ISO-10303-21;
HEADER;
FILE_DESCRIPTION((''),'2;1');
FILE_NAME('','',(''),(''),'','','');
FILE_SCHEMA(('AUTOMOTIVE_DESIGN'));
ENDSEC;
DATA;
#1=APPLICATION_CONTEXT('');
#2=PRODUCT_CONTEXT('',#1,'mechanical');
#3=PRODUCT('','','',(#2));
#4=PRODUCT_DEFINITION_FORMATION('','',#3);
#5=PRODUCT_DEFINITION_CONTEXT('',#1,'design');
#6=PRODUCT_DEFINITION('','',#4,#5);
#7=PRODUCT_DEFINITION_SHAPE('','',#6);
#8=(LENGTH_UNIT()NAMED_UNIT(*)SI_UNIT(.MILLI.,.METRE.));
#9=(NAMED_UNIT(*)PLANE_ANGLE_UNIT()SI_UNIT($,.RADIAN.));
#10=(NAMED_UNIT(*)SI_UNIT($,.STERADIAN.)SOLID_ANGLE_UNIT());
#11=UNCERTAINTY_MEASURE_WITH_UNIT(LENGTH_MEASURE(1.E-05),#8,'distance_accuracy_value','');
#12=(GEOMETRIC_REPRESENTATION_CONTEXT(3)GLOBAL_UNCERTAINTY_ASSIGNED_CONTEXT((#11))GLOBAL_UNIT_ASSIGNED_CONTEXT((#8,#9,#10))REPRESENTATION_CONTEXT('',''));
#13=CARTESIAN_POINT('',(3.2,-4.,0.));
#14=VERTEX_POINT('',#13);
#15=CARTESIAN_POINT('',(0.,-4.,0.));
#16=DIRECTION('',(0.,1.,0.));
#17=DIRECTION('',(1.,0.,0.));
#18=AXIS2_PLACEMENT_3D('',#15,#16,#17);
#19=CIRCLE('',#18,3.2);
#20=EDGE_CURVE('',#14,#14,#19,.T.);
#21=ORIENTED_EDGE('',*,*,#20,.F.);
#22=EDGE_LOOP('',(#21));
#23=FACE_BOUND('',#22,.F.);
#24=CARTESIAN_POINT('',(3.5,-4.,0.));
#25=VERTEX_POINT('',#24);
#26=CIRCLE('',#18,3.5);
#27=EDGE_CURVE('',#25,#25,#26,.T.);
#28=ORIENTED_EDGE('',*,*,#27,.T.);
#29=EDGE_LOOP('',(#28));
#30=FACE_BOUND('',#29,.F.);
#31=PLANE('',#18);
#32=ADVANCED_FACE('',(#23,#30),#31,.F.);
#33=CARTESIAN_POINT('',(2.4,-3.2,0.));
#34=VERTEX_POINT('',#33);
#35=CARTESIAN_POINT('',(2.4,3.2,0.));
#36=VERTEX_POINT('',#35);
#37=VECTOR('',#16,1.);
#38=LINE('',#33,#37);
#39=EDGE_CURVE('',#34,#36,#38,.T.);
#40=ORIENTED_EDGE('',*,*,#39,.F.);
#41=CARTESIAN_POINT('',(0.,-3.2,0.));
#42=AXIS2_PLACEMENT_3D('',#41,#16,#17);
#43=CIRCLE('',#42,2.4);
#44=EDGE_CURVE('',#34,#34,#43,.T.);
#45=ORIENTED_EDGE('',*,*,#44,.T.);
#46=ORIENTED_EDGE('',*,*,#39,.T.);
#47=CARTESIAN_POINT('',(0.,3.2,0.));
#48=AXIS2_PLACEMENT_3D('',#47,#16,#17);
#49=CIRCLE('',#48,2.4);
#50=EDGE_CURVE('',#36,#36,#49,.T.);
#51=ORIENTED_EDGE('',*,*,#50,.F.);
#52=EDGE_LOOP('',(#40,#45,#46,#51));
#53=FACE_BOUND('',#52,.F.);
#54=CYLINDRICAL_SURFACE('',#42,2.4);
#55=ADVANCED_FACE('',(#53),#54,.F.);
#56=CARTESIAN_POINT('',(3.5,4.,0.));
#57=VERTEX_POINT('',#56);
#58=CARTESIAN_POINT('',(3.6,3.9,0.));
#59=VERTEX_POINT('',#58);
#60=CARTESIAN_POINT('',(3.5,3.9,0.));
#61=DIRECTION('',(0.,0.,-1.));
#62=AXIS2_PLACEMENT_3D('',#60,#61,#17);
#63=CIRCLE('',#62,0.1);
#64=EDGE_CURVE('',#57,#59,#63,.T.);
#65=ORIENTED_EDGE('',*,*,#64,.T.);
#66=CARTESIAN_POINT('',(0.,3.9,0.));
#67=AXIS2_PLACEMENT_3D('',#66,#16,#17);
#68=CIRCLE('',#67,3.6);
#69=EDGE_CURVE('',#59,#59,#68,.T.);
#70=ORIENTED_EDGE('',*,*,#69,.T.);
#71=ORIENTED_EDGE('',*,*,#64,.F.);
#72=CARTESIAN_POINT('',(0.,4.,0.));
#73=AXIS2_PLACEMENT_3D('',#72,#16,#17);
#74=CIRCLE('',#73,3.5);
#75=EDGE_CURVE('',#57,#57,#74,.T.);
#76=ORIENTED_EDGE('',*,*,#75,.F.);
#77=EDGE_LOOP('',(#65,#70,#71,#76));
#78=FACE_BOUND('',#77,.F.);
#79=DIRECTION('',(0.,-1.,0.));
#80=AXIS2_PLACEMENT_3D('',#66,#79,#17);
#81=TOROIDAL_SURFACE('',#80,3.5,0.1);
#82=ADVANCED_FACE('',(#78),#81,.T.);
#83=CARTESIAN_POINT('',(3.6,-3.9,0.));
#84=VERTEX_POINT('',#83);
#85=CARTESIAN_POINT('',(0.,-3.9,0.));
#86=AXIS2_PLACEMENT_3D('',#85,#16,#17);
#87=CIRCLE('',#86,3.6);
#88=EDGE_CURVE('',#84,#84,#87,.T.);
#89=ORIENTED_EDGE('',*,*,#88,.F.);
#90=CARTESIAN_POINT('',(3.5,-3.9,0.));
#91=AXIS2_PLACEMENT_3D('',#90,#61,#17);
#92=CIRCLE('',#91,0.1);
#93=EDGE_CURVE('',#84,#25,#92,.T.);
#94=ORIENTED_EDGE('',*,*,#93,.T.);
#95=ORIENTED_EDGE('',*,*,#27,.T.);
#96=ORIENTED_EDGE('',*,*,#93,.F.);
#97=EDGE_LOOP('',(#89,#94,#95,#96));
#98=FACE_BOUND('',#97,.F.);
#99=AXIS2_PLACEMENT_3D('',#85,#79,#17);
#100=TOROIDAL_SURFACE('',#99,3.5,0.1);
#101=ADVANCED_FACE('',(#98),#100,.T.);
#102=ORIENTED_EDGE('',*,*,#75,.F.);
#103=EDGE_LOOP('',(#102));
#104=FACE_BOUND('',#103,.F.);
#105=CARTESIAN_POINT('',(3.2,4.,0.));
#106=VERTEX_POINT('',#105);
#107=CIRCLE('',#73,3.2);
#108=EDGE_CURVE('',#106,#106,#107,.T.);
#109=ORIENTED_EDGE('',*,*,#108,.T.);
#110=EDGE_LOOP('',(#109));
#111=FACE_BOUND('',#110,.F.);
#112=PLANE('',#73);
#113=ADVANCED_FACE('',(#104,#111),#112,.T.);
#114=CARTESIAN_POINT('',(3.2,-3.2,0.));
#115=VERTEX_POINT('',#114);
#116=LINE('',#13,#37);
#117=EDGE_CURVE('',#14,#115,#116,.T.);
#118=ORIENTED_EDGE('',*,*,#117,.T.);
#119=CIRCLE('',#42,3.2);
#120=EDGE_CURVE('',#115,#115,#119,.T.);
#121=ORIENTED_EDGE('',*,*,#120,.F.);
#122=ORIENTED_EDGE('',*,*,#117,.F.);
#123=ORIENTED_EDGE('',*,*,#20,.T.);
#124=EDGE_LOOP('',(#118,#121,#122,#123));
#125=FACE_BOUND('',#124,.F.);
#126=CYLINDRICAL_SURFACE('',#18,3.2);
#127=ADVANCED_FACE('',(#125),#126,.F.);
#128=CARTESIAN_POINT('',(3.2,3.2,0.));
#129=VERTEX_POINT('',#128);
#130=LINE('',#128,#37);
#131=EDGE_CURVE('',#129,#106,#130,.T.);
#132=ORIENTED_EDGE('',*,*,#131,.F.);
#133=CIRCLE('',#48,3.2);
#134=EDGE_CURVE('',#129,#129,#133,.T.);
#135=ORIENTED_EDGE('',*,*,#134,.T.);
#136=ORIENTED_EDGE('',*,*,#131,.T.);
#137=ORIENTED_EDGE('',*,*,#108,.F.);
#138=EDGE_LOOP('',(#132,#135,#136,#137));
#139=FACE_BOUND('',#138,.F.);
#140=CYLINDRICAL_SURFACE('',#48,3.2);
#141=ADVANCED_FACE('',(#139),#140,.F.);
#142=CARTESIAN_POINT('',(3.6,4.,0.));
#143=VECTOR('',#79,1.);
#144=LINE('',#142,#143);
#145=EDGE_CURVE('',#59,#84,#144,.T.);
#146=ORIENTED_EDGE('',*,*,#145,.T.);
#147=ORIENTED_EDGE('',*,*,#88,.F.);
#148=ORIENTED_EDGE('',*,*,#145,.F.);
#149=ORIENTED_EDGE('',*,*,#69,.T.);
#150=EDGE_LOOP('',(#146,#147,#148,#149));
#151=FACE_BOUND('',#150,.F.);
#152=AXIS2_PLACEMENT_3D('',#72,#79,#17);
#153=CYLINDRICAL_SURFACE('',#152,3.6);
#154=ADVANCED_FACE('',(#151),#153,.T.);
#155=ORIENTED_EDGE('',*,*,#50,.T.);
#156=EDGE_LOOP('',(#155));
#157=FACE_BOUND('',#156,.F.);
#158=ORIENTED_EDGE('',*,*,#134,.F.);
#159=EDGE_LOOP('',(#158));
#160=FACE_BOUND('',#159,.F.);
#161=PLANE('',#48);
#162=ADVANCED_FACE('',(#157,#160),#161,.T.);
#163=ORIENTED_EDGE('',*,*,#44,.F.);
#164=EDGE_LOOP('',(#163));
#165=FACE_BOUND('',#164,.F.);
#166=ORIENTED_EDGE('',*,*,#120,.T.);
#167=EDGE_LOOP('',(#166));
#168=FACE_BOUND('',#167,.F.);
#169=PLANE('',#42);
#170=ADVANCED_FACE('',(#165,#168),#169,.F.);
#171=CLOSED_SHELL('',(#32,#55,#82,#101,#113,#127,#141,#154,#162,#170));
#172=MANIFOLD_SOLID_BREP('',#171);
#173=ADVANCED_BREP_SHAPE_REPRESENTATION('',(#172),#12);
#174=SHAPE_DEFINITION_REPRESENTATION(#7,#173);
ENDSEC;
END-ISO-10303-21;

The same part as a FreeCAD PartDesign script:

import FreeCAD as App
import Part
import Sketcher


def edges_at(feature, points):
    """Names of the edges that pass closest to the given points."""
    edges = feature.Shape.Edges
    near = lambda p: min(range(len(edges)), key=lambda i: edges[i].distToShape(Part.Vertex(*p))[0])
    return sorted({f"Edge{near(p) + 1}" for p in points})

doc = App.newDocument("Part")
body = doc.addObject("PartDesign::Body", "Body")

# Sketch on XY plane
sketch1 = doc.addObject("Sketcher::SketchObject", "Sketch")
body.addObject(sketch1)
sketch1.AttachmentSupport = (doc.XY_Plane, [""])
sketch1.MapMode = "FlatFace"
sketch1.addGeometry([
    Part.LineSegment(App.Vector(2.4, 3.2, 0), App.Vector(2.4, -3.2, 0)),  # 0
    Part.LineSegment(App.Vector(2.4, -3.2, 0), App.Vector(3.2, -3.2, 0)),  # 1
    Part.LineSegment(App.Vector(3.2, -3.2, 0), App.Vector(3.2, -4, 0)),  # 2
    Part.LineSegment(App.Vector(3.2, -4, 0), App.Vector(3.6, -4, 0)),  # 3
    Part.LineSegment(App.Vector(3.6, -4, 0), App.Vector(3.6, 4, 0)),  # 4
    Part.LineSegment(App.Vector(3.6, 4, 0), App.Vector(3.2, 4, 0)),  # 5
    Part.LineSegment(App.Vector(3.2, 4, 0), App.Vector(3.2, 3.2, 0)),  # 6
    Part.LineSegment(App.Vector(3.2, 3.2, 0), App.Vector(2.4, 3.2, 0)),  # 7
], False)
sketch1.addConstraint([
    Sketcher.Constraint("Coincident", 0, 2, 1, 1),
    Sketcher.Constraint("Coincident", 1, 2, 2, 1),
    Sketcher.Constraint("Coincident", 2, 2, 3, 1),
    Sketcher.Constraint("Coincident", 3, 2, 4, 1),
    Sketcher.Constraint("Coincident", 4, 2, 5, 1),
    Sketcher.Constraint("Coincident", 5, 2, 6, 1),
    Sketcher.Constraint("Coincident", 6, 2, 7, 1),
    Sketcher.Constraint("Coincident", 7, 2, 0, 1),
    Sketcher.Constraint("Vertical", 0),
    Sketcher.Constraint("Horizontal", 1),
    Sketcher.Constraint("Vertical", 2),
    Sketcher.Constraint("Horizontal", 3),
    Sketcher.Constraint("Vertical", 4),
    Sketcher.Constraint("Horizontal", 5),
    Sketcher.Constraint("Vertical", 6),
    Sketcher.Constraint("Horizontal", 7),
    Sketcher.Constraint("Symmetric", 2, 2, 5, 2, -1),
    Sketcher.Constraint("Equal", 7, 2),
    Sketcher.Constraint("Equal", 2, 6),
    Sketcher.Constraint("DistanceY", 4, 1, 4, 2, 8.0),
    Sketcher.Constraint("DistanceX", 1, 1, 1, 2, 0.8),
    Sketcher.Constraint("DistanceX", 3, 1, 3, 2, 0.4),
    Sketcher.Constraint("DistanceX", -1, 1, 0, 2, 2.4),
])
revolution = doc.addObject("PartDesign::Revolution", "Revolution")
body.addObject(revolution)
revolution.Profile = sketch1
revolution.ReferenceAxis = (sketch1, ["V_Axis"])
revolution.Angle = 360
doc.recompute()

fillet = doc.addObject("PartDesign::Fillet", "Fillet")
body.addObject(fillet)
fillet.Base = (revolution, edges_at(revolution, [(-3.6, 4, 0), (-3.6, -4, 0)]))
fillet.Radius = 0.1

doc.recompute()
